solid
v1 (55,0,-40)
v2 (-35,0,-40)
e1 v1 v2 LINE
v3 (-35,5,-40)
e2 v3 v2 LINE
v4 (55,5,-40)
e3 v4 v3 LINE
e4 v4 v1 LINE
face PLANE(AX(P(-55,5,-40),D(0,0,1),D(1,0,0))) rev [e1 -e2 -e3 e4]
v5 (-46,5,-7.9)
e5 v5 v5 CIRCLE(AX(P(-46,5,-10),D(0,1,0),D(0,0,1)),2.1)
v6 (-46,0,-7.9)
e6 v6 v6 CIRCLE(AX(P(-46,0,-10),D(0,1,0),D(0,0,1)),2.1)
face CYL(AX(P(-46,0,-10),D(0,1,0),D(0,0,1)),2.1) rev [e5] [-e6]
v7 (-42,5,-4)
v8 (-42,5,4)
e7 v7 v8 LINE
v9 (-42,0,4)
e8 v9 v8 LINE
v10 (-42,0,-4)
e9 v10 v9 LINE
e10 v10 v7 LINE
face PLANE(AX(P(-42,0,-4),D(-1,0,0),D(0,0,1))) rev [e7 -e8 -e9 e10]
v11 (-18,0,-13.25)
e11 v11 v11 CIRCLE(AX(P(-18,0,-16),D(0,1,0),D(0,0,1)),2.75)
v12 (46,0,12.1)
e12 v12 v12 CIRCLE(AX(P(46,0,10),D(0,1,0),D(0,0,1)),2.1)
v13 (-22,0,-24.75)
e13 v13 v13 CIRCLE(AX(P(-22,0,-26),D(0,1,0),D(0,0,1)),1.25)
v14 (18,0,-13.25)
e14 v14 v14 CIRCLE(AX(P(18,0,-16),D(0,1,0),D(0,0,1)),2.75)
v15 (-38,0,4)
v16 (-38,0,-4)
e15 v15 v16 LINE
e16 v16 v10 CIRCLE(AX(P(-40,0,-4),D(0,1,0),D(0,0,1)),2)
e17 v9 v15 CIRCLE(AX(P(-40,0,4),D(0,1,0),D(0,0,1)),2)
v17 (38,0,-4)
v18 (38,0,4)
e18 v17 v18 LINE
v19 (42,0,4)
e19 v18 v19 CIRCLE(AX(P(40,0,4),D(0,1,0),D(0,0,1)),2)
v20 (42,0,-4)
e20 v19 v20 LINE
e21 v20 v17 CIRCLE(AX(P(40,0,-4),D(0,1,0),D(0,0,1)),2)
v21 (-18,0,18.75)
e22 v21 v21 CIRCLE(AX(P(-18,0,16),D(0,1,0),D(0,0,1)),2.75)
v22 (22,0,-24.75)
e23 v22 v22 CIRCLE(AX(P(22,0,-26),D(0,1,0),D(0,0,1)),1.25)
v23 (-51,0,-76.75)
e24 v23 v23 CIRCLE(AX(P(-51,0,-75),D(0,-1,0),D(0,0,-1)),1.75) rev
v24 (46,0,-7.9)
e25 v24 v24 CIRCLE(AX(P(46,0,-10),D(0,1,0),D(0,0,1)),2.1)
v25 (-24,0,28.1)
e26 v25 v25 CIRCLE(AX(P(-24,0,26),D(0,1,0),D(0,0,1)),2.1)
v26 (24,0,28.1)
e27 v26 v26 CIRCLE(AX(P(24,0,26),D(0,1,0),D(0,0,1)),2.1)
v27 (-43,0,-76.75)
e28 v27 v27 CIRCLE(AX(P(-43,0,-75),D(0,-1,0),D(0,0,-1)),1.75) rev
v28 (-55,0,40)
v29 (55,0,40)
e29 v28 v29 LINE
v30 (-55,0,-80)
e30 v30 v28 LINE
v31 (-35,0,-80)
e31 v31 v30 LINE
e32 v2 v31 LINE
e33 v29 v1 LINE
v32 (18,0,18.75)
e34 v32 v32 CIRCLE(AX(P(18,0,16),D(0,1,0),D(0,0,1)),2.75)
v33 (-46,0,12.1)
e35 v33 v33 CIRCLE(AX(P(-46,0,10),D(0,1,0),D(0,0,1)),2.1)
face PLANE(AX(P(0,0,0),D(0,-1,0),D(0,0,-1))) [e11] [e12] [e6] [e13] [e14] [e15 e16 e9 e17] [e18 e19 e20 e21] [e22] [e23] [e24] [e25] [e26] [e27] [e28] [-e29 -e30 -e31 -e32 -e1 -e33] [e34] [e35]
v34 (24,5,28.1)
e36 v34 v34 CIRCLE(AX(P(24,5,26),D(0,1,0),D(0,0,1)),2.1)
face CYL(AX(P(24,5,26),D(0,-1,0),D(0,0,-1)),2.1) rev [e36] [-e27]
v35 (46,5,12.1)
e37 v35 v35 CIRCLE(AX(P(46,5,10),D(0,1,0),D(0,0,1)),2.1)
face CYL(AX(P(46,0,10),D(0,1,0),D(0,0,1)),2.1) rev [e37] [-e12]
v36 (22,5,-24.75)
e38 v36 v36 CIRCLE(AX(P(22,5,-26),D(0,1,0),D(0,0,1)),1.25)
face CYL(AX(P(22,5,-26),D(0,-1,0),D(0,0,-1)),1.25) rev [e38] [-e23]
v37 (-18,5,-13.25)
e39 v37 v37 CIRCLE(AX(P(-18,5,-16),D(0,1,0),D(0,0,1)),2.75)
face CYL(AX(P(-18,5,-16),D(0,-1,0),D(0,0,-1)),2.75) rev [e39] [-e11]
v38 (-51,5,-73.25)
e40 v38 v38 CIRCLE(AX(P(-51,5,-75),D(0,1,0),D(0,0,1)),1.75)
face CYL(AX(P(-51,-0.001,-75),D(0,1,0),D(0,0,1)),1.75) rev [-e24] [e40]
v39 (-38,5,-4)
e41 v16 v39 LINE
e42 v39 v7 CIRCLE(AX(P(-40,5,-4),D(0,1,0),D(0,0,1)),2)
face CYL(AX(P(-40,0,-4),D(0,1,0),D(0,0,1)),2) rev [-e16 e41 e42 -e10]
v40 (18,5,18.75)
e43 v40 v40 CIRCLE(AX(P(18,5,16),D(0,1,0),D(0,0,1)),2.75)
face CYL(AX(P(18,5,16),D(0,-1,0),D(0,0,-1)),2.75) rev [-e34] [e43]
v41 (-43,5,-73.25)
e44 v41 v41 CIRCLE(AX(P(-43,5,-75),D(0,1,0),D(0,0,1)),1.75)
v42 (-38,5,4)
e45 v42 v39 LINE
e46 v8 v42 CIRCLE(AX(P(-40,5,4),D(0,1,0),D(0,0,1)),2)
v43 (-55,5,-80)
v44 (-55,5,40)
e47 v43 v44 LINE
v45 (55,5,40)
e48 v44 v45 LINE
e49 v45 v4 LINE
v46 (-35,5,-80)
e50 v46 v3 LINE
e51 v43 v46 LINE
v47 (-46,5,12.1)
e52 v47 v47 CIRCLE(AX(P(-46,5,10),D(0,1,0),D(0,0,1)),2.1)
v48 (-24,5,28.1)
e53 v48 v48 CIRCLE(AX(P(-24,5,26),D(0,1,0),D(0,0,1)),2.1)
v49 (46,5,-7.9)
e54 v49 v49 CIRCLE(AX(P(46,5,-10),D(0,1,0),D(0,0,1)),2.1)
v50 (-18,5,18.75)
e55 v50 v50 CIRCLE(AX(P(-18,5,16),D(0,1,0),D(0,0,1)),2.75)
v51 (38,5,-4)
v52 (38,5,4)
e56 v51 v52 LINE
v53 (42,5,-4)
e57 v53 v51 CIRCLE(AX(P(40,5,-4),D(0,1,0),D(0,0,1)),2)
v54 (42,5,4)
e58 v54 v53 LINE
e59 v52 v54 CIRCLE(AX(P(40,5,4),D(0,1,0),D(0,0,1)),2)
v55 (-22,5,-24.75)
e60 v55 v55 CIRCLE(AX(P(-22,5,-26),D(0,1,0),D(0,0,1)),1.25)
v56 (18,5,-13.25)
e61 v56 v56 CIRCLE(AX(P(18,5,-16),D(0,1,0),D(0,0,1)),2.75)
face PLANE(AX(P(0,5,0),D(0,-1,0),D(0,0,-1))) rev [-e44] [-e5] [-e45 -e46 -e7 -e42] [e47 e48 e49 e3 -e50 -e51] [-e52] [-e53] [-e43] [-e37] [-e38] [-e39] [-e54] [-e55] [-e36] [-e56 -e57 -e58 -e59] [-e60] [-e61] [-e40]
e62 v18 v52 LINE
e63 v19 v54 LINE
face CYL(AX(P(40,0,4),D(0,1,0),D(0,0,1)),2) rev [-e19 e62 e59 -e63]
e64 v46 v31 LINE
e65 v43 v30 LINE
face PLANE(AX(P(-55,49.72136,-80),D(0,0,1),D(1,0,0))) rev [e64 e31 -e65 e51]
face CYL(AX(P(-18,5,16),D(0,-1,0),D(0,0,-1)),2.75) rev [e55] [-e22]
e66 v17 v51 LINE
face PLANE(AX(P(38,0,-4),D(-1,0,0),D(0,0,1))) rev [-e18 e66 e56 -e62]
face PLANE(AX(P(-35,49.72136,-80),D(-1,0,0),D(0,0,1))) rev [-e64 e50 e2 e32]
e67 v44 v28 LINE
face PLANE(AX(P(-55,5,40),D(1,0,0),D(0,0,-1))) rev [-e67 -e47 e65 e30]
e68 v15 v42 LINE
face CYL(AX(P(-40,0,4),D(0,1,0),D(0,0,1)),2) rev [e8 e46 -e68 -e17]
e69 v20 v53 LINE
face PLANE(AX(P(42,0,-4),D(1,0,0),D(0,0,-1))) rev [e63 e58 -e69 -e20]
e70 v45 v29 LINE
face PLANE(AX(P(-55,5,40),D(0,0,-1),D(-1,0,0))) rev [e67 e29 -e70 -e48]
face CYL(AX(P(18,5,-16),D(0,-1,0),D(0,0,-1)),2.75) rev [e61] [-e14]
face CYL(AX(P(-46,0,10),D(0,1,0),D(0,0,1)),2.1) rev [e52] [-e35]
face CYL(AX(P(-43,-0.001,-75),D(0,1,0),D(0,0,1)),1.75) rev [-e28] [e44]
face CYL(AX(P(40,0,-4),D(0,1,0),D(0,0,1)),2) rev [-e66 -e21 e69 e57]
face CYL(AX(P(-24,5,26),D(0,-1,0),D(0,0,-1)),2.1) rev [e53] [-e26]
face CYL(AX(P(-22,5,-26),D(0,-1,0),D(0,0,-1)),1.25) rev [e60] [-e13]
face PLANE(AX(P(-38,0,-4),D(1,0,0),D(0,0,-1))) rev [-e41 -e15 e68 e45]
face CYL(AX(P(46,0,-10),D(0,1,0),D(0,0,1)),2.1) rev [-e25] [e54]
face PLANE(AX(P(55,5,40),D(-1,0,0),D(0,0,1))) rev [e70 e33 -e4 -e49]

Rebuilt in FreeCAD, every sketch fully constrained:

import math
import FreeCAD as App
import Part
import Sketcher
from FreeCAD import Vector


def add_polygon(sketch, points):
    """Adds a closed chain of lines whose ends are joined by coincident constraints."""
    first, n = sketch.GeometryCount, len(points)
    for a, b in zip(points, points[1:] + points[:1]):
        sketch.addGeometry(Part.LineSegment(App.Vector(*a, 0), App.Vector(*b, 0)), False)
    for i in range(n):
        sketch.addConstraint(Sketcher.Constraint("Coincident", first + i, 2, first + (i + 1) % n, 1))

doc = App.newDocument("Part")
body = doc.addObject("PartDesign::Body", "Body")

# Sketch on XZ plane
sketch1 = doc.addObject("Sketcher::SketchObject", "Sketch")
body.addObject(sketch1)
sketch1.AttachmentSupport = (doc.XZ_Plane, [""])
sketch1.MapMode = "FlatFace"
add_polygon(sketch1, [(-55, -40), (-55, 40), (55, 40), (55, -40)])  # lines 0-3
sketch1.addGeometry(Part.Circle(Vector(-24, 26, 0), Vector(0, 0, 1), 2.1), False)  # 4
sketch1.addGeometry(Part.Circle(Vector(-18, 16, 0), Vector(0, 0, 1), 2.75), False)  # 5
sketch1.addGeometry(Part.Circle(Vector(24, 26, 0), Vector(0, 0, 1), 2.1), False)  # 6
sketch1.addGeometry(Part.Circle(Vector(18, 16, 0), Vector(0, 0, 1), 2.75), False)  # 7
sketch1.addGeometry(Part.Circle(Vector(-18, -16, 0), Vector(0, 0, 1), 2.75), False)  # 8
sketch1.addGeometry(Part.Circle(Vector(-22, -26, 0), Vector(0, 0, 1), 1.25), False)  # 9
sketch1.addGeometry(Part.Circle(Vector(18, -16, 0), Vector(0, 0, 1), 2.75), False)  # 10
sketch1.addGeometry(Part.Circle(Vector(22, -26, 0), Vector(0, 0, 1), 1.25), False)  # 11
sketch1.addConstraint([
    Sketcher.Constraint("Vertical", 0),
    Sketcher.Constraint("Horizontal", 1),
    Sketcher.Constraint("Vertical", 2),
    Sketcher.Constraint("Horizontal", 3),
    Sketcher.Constraint("Equal", 4, 6),
    Sketcher.Constraint("Equal", 5, 7),
    Sketcher.Constraint("Equal", 7, 8),
    Sketcher.Constraint("Equal", 8, 10),
    Sketcher.Constraint("Equal", 9, 11),
    Sketcher.Constraint("Symmetric", 7, 3, 8, 3, -1, 1),
    Sketcher.Constraint("Symmetric", 5, 3, 10, 3, -1, 1),
    Sketcher.Constraint("Symmetric", 0, 2, 2, 2, -1, 1),
    Sketcher.Constraint("Symmetric", 4, 3, 6, 3, -2),
    Sketcher.Constraint("Symmetric", 5, 3, 7, 3, -2),
    Sketcher.Constraint("Symmetric", 9, 3, 11, 3, -2),
    Sketcher.Constraint("Diameter", 4, 4.2),
    Sketcher.Constraint("Diameter", 5, 5.5),
    Sketcher.Constraint("Diameter", 9, 2.5),
    Sketcher.Constraint("DistanceX", 1, 1, 1, 2, 110.0),
    Sketcher.Constraint("DistanceY", 0, 1, 0, 2, 80.0),
    Sketcher.Constraint("DistanceX", 4, 3, -1, 1, 24.0),
    Sketcher.Constraint("DistanceY", -1, 1, 4, 3, 26.0),
    Sketcher.Constraint("DistanceX", 5, 3, -1, 1, 18.0),
    Sketcher.Constraint("DistanceY", -1, 1, 5, 3, 16.0),
    Sketcher.Constraint("DistanceX", 9, 3, -1, 1, 22.0),
    Sketcher.Constraint("DistanceY", 9, 3, -1, 1, 26.0),
])
pad1 = doc.addObject("PartDesign::Pad", "Pad")
body.addObject(pad1)
pad1.Profile = sketch1
pad1.Length = 5
pad1.Reversed = True

# Sketch on XZ plane
sketch2 = doc.addObject("Sketcher::SketchObject", "Sketch001")
body.addObject(sketch2)
sketch2.AttachmentSupport = (doc.XZ_Plane, [""])
sketch2.MapMode = "FlatFace"
sketch2.AttachmentOffset = App.Placement(Vector(0, 0, -5), App.Rotation())
sketch2.addGeometry([
    Part.Circle(Vector(-46, -10, 0), Vector(0, 0, 1), 2.1),  # 0
    Part.Circle(Vector(-46, 10, 0), Vector(0, 0, 1), 2.1),  # 1
    Part.Circle(Vector(46, 10, 0), Vector(0, 0, 1), 2.1),  # 2
    Part.Circle(Vector(46, -10, 0), Vector(0, 0, 1), 2.1),  # 3
    Part.LineSegment(Vector(-38, 4, 0), Vector(-38, -4, 0)),  # 4
    Part.ArcOfCircle(Part.Circle(Vector(-40, -4, 0), Vector(0, 0, 1), 2), math.radians(180), math.radians(360)),  # 5
    Part.LineSegment(Vector(-42, -4, 0), Vector(-42, 4, 0)),  # 6
    Part.ArcOfCircle(Part.Circle(Vector(-40, 4, 0), Vector(0, 0, 1), 2), math.radians(0), math.radians(180)),  # 7
    Part.LineSegment(Vector(42, 4, 0), Vector(42, -4, 0)),  # 8
    Part.ArcOfCircle(Part.Circle(Vector(40, -4, 0), Vector(0, 0, 1), 2), math.radians(180), math.radians(360)),  # 9
    Part.LineSegment(Vector(38, -4, 0), Vector(38, 4, 0)),  # 10
    Part.ArcOfCircle(Part.Circle(Vector(40, 4, 0), Vector(0, 0, 1), 2), math.radians(0), math.radians(180)),  # 11
], False)
sketch2.addConstraint([
    Sketcher.Constraint("Tangent", 4, 2, 5, 2),
    Sketcher.Constraint("Tangent", 5, 1, 6, 1),
    Sketcher.Constraint("Tangent", 6, 2, 7, 2),
    Sketcher.Constraint("Tangent", 7, 1, 4, 1),
    Sketcher.Constraint("Tangent", 8, 2, 9, 2),
    Sketcher.Constraint("Tangent", 9, 1, 10, 1),
    Sketcher.Constraint("Tangent", 10, 2, 11, 2),
    Sketcher.Constraint("Tangent", 11, 1, 8, 1),
    Sketcher.Constraint("Vertical", 4),
    Sketcher.Constraint("Vertical", 6),
    Sketcher.Constraint("Vertical", 8),
    Sketcher.Constraint("Vertical", 10),
    Sketcher.Constraint("Equal", 0, 1),
    Sketcher.Constraint("Equal", 1, 2),
    Sketcher.Constraint("Equal", 2, 3),
    Sketcher.Constraint("Equal", 7, 9),
    Sketcher.Constraint("Symmetric", 0, 3, 2, 3, -1, 1),
    Sketcher.Constraint("Symmetric", 1, 3, 3, 3, -1, 1),
    Sketcher.Constraint("Symmetric", 7, 3, 9, 3, -1, 1),
    Sketcher.Constraint("Symmetric", 1, 3, 2, 3, -2),
    Sketcher.Constraint("Horizontal", 5, 3, 9, 3),
    Sketcher.Constraint("Horizontal", 7, 3, 11, 3),
    Sketcher.Constraint("Radius", 5, 2.0),
    Sketcher.Constraint("Diameter", 0, 4.2),
    Sketcher.Constraint("DistanceY", 4, 2, 4, 1, 8.0),
    Sketcher.Constraint("DistanceX", 0, 3, -1, 1, 46.0),
    Sketcher.Constraint("DistanceY", 0, 3, -1, 1, 10.0),
    Sketcher.Constraint("DistanceX", 5, 3, -1, 1, 40.0),
])
pocket1 = doc.addObject("PartDesign::Pocket", "Pocket")
body.addObject(pocket1)
pocket1.Profile = sketch2
pocket1.Type = "ThroughAll"
pocket1.Reversed = True

# Sketch on XZ plane
sketch3 = doc.addObject("Sketcher::SketchObject", "Sketch002")
body.addObject(sketch3)
sketch3.AttachmentSupport = (doc.XZ_Plane, [""])
sketch3.MapMode = "FlatFace"
add_polygon(sketch3, [(-55, -80), (-55, -40), (-35, -40), (-35, -80)])  # lines 0-3
sketch3.addConstraint([
    Sketcher.Constraint("Vertical", 0),
    Sketcher.Constraint("Horizontal", 1),
    Sketcher.Constraint("Vertical", 2),
    Sketcher.Constraint("Horizontal", 3),
    Sketcher.Constraint("DistanceX", 1, 1, 1, 2, 20.0),
    Sketcher.Constraint("DistanceY", 0, 1, 0, 2, 40.0),
    Sketcher.Constraint("DistanceX", 0, 2, -1, 1, 55.0),
    Sketcher.Constraint("DistanceY", 0, 2, -1, 1, 40.0),
])
pad2 = doc.addObject("PartDesign::Pad", "Pad001")
body.addObject(pad2)
pad2.Profile = sketch3
pad2.Length = 5
pad2.Reversed = True

# Sketch on XZ plane
sketch4 = doc.addObject("Sketcher::SketchObject", "Sketch003")
body.addObject(sketch4)
sketch4.AttachmentSupport = (doc.XZ_Plane, [""])
sketch4.MapMode = "FlatFace"
sketch4.AttachmentOffset = App.Placement(Vector(0, 0, -5), App.Rotation())
sketch4.addGeometry(Part.Circle(Vector(-51, -75, 0), Vector(0, 0, 1), 1.75), False)
sketch4.addConstraint([
    Sketcher.Constraint("Diameter", 0, 3.5),
    Sketcher.Constraint("DistanceX", 0, 3, -1, 1, 51.0),
    Sketcher.Constraint("DistanceY", 0, 3, -1, 1, 75.0),
])
pocket2 = doc.addObject("PartDesign::Pocket", "Pocket001")
body.addObject(pocket2)
pocket2.Profile = sketch4
pocket2.Type = "UpToFirst"
pocket2.Reversed = True

# Sketch on XZ plane
sketch5 = doc.addObject("Sketcher::SketchObject", "Sketch004")
body.addObject(sketch5)
sketch5.AttachmentSupport = (doc.XZ_Plane, [""])
sketch5.MapMode = "FlatFace"
sketch5.AttachmentOffset = App.Placement(Vector(0, 0, -5), App.Rotation())
sketch5.addGeometry(Part.Circle(Vector(-43, -75, 0), Vector(0, 0, 1), 1.75), False)
sketch5.addConstraint([
    Sketcher.Constraint("Diameter", 0, 3.5),
    Sketcher.Constraint("DistanceX", 0, 3, -1, 1, 43.0),
    Sketcher.Constraint("DistanceY", 0, 3, -1, 1, 75.0),
])
pocket3 = doc.addObject("PartDesign::Pocket", "Pocket002")
body.addObject(pocket3)
pocket3.Profile = sketch5
pocket3.Type = "UpToFirst"
pocket3.Reversed = True

doc.recompute()
